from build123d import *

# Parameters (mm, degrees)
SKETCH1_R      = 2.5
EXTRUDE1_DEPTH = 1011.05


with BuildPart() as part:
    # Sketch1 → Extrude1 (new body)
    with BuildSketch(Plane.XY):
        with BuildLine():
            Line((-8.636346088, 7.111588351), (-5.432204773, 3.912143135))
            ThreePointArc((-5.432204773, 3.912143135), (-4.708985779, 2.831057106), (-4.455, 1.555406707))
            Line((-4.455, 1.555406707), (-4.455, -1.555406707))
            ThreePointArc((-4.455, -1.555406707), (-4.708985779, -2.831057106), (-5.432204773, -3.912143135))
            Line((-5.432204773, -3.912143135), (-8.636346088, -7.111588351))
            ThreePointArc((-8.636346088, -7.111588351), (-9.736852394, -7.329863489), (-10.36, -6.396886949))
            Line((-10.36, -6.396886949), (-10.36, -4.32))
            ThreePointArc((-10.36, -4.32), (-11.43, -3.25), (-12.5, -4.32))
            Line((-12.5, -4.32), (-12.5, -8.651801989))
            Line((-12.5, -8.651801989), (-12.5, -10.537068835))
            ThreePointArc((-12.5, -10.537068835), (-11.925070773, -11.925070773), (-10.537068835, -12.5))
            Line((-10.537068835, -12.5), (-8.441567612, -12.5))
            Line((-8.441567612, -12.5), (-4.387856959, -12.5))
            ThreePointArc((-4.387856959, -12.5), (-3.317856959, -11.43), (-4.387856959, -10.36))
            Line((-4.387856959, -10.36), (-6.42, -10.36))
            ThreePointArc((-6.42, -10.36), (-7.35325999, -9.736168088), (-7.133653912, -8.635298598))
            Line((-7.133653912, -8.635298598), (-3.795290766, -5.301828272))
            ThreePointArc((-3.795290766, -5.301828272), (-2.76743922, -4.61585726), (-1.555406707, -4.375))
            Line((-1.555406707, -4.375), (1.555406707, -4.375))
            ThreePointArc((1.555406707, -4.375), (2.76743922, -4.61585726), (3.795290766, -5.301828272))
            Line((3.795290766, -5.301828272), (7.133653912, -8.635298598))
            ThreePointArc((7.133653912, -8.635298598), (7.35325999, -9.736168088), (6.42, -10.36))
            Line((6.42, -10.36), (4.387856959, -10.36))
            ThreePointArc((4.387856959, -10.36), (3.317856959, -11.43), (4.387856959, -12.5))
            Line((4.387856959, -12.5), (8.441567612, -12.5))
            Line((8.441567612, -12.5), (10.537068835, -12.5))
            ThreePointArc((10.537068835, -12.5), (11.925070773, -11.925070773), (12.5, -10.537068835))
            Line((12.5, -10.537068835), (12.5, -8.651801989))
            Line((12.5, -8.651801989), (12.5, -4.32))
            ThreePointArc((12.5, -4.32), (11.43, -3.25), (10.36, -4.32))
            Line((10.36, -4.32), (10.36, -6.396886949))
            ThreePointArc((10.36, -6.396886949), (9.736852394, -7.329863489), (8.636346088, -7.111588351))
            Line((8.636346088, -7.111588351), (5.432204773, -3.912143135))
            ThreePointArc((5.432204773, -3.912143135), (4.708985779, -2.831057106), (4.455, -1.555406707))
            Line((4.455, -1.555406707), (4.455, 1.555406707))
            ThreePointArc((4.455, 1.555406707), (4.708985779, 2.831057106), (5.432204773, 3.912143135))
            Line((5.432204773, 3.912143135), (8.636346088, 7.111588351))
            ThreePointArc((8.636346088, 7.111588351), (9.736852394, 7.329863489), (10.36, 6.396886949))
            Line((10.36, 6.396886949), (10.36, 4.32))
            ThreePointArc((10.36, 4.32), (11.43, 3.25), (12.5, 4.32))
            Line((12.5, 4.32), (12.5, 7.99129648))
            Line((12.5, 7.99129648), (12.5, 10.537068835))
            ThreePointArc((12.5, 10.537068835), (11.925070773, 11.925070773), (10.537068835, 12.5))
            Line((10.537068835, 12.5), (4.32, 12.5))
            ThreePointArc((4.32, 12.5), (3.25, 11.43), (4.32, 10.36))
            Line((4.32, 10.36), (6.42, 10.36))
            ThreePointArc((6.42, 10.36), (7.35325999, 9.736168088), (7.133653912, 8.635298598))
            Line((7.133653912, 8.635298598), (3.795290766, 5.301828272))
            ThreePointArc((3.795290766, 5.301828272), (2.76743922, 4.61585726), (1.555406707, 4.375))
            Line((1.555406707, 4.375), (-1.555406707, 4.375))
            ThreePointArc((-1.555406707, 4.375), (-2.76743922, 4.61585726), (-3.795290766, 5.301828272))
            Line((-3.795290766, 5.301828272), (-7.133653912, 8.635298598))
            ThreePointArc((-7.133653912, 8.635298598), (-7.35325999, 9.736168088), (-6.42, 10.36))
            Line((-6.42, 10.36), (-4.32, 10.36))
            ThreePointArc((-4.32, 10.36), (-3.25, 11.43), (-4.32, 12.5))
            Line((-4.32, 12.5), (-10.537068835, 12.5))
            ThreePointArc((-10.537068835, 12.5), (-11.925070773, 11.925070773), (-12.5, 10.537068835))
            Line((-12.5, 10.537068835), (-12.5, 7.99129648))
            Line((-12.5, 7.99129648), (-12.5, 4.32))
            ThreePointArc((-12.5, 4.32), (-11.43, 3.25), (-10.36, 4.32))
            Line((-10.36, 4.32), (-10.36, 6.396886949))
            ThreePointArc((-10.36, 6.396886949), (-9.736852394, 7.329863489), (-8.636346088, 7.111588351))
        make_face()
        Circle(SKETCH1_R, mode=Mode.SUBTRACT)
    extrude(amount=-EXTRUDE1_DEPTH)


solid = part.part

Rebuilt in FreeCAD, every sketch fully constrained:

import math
import FreeCAD as App
import Part
import Sketcher

V = App.Vector
Q = App.Units.Quantity

doc = App.newDocument("Part")
params = doc.addObject("Spreadsheet::Sheet", "Params")
for row, (alias, value) in enumerate([
    ("sketch1_diameter", "5 mm"),
    ("sketch1_radius", "1.01 mm"),
    ("sketch1_radius2", "1.07 mm"),
    ("sketch1_radius3", "3.17 mm"),
    ("sketch1_width", "2.1 mm"),
    ("pad1_length", "1011.05 mm"),
], start=1):
    params.set(f"A{row}", alias)
    params.set(f"B{row}", "=" + value)
    params.setAlias(f"B{row}", alias)

body = doc.addObject("PartDesign::Body", "Body")

sketch1 = doc.addObject("Sketcher::SketchObject", "Sketch")
body.addObject(sketch1)
sketch1.AttachmentSupport = (doc.XY_Plane, [""])
sketch1.MapMode = "FlatFace"
sketch1.addGeometry(Part.LineSegment(V(-8.636346, 7.111588, 0), V(-5.432205, 3.912143, 0)), False)
sketch1.addGeometry(Part.ArcOfCircle(Part.Circle(V(-7.785487, 1.555407, 0), V(0, 0, 1), 3.330487), math.radians(0), math.radians(45.042018)), False)
sketch1.addGeometry(Part.LineSegment(V(-4.455, 1.555407, 0), V(-4.455, -1.555407, 0)), False)
sketch1.addGeometry(Part.ArcOfCircle(Part.Circle(V(-7.785487, -1.555407, 0), V(0, 0, 1), 3.330487), math.radians(-45.042018), math.radians(0)), False)
sketch1.addGeometry(Part.LineSegment(V(-5.432205, -3.912143, 0), V(-8.636346, -7.111588, 0)), False)
sketch1.addGeometry(Part.ArcOfCircle(Part.Circle(V(-9.35, -6.396887, 0), V(0, 0, 1), 1.01), math.radians(-180), math.radians(-45.042018)), False)
sketch1.addGeometry(Part.LineSegment(V(-10.36, -6.396887, 0), V(-10.36, -4.32, 0)), False)
sketch1.addGeometry(Part.ArcOfCircle(Part.Circle(V(-11.43, -4.32, 0), V(0, 0, 1), 1.07), math.radians(0), math.radians(180)), False)
sketch1.addGeometry(Part.LineSegment(V(-12.5, -4.32, 0), V(-12.5, -10.537069, 0)), False)
sketch1.addGeometry(Part.ArcOfCircle(Part.Circle(V(-10.537069, -10.537069, 0), V(0, 0, 1), 1.962931), math.radians(180), math.radians(270)), False)
sketch1.addGeometry(Part.LineSegment(V(-10.537069, -12.5, 0), V(-4.387857, -12.5, 0)), False)
sketch1.addGeometry(Part.ArcOfCircle(Part.Circle(V(-4.387857, -11.43, 0), V(0, 0, 1), 1.07), math.radians(-90), math.radians(90)), False)
sketch1.addGeometry(Part.LineSegment(V(-4.387857, -10.36, 0), V(-6.42, -10.36, 0)), False)
sketch1.addGeometry(Part.ArcOfCircle(Part.Circle(V(-6.42, -9.35, 0), V(0, 0, 1), 1.01), math.radians(134.957982), math.radians(270)), False)
sketch1.addGeometry(Part.LineSegment(V(-7.133654, -8.635299, 0), V(-3.795291, -5.301828, 0)), False)
sketch1.addGeometry(Part.ArcOfCircle(Part.Circle(V(-1.555407, -7.545, 0), V(0, 0, 1), 3.17), math.radians(90), math.radians(134.957982)), False)
sketch1.addGeometry(Part.LineSegment(V(-1.555407, -4.375, 0), V(1.555407, -4.375, 0)), False)
sketch1.addGeometry(Part.ArcOfCircle(Part.Circle(V(1.555407, -7.545, 0), V(0, 0, 1), 3.17), math.radians(45.042018), math.radians(90)), False)
sketch1.addGeometry(Part.LineSegment(V(3.795291, -5.301828, 0), V(7.133654, -8.635299, 0)), False)
sketch1.addGeometry(Part.ArcOfCircle(Part.Circle(V(6.42, -9.35, 0), V(0, 0, 1), 1.01), math.radians(-90), math.radians(45.042018)), False)
sketch1.addGeometry(Part.LineSegment(V(6.42, -10.36, 0), V(4.387857, -10.36, 0)), False)
sketch1.addGeometry(Part.ArcOfCircle(Part.Circle(V(4.387857, -11.43, 0), V(0, 0, 1), 1.07), math.radians(90), math.radians(270)), False)
sketch1.addGeometry(Part.LineSegment(V(4.387857, -12.5, 0), V(10.537069, -12.5, 0)), False)
sketch1.addGeometry(Part.ArcOfCircle(Part.Circle(V(10.537069, -10.537069, 0), V(0, 0, 1), 1.962931), math.radians(-90), math.radians(0)), False)
sketch1.addGeometry(Part.LineSegment(V(12.5, -10.537069, 0), V(12.5, -4.32, 0)), False)
sketch1.addGeometry(Part.ArcOfCircle(Part.Circle(V(11.43, -4.32, 0), V(0, 0, 1), 1.07), math.radians(0), math.radians(180)), False)
sketch1.addGeometry(Part.LineSegment(V(10.36, -4.32, 0), V(10.36, -6.396887, 0)), False)
sketch1.addGeometry(Part.ArcOfCircle(Part.Circle(V(9.35, -6.396887, 0), V(0, 0, 1), 1.01), math.radians(-134.957982), math.radians(0)), False)
sketch1.addGeometry(Part.LineSegment(V(8.636346, -7.111588, 0), V(5.432205, -3.912143, 0)), False)
sketch1.addGeometry(Part.ArcOfCircle(Part.Circle(V(7.785487, -1.555407, 0), V(0, 0, 1), 3.330487), math.radians(180), math.radians(225.042018)), False)
sketch1.addGeometry(Part.LineSegment(V(4.455, -1.555407, 0), V(4.455, 1.555407, 0)), False)
sketch1.addGeometry(Part.ArcOfCircle(Part.Circle(V(7.785487, 1.555407, 0), V(0, 0, 1), 3.330487), math.radians(134.957982), math.radians(180)), False)
sketch1.addGeometry(Part.LineSegment(V(5.432205, 3.912143, 0), V(8.636346, 7.111588, 0)), False)
sketch1.addGeometry(Part.ArcOfCircle(Part.Circle(V(9.35, 6.396887, 0), V(0, 0, 1), 1.01), math.radians(0), math.radians(134.957982)), False)
sketch1.addGeometry(Part.LineSegment(V(10.36, 6.396887, 0), V(10.36, 4.32, 0)), False)
sketch1.addGeometry(Part.ArcOfCircle(Part.Circle(V(11.43, 4.32, 0), V(0, 0, 1), 1.07), math.radians(180), math.radians(360)), False)
sketch1.addGeometry(Part.LineSegment(V(12.5, 4.32, 0), V(12.5, 10.537069, 0)), False)
sketch1.addGeometry(Part.ArcOfCircle(Part.Circle(V(10.537069, 10.537069, 0), V(0, 0, 1), 1.962931), math.radians(0), math.radians(90)), False)
sketch1.addGeometry(Part.LineSegment(V(10.537069, 12.5, 0), V(4.32, 12.5, 0)), False)
sketch1.addGeometry(Part.ArcOfCircle(Part.Circle(V(4.32, 11.43, 0), V(0, 0, 1), 1.07), math.radians(90), math.radians(270)), False)
sketch1.addGeometry(Part.LineSegment(V(4.32, 10.36, 0), V(6.42, 10.36, 0)), False)
sketch1.addGeometry(Part.ArcOfCircle(Part.Circle(V(6.42, 9.35, 0), V(0, 0, 1), 1.01), math.radians(-45.042018), math.radians(90)), False)
sketch1.addGeometry(Part.LineSegment(V(7.133654, 8.635299, 0), V(3.795291, 5.301828, 0)), False)
sketch1.addGeometry(Part.ArcOfCircle(Part.Circle(V(1.555407, 7.545, 0), V(0, 0, 1), 3.17), math.radians(-90), math.radians(-45.042018)), False)
sketch1.addGeometry(Part.LineSegment(V(1.555407, 4.375, 0), V(-1.555407, 4.375, 0)), False)
sketch1.addGeometry(Part.ArcOfCircle(Part.Circle(V(-1.555407, 7.545, 0), V(0, 0, 1), 3.17), math.radians(-134.957982), math.radians(-90)), False)
sketch1.addGeometry(Part.LineSegment(V(-3.795291, 5.301828, 0), V(-7.133654, 8.635299, 0)), False)
sketch1.addGeometry(Part.ArcOfCircle(Part.Circle(V(-6.42, 9.35, 0), V(0, 0, 1), 1.01), math.radians(90), math.radians(225.042018)), False)
sketch1.addGeometry(Part.LineSegment(V(-6.42, 10.36, 0), V(-4.32, 10.36, 0)), False)
sketch1.addGeometry(Part.ArcOfCircle(Part.Circle(V(-4.32, 11.43, 0), V(0, 0, 1), 1.07), math.radians(-90), math.radians(90)), False)
sketch1.addGeometry(Part.LineSegment(V(-4.32, 12.5, 0), V(-10.537069, 12.5, 0)), False)
sketch1.addGeometry(Part.ArcOfCircle(Part.Circle(V(-10.537069, 10.537069, 0), V(0, 0, 1), 1.962931), math.radians(90), math.radians(180)), False)
sketch1.addGeometry(Part.LineSegment(V(-12.5, 10.537069, 0), V(-12.5, 4.32, 0)), False)
sketch1.addGeometry(Part.ArcOfCircle(Part.Circle(V(-11.43, 4.32, 0), V(0, 0, 1), 1.07), math.radians(180), math.radians(360)), False)
sketch1.addGeometry(Part.LineSegment(V(-10.36, 4.32, 0), V(-10.36, 6.396887, 0)), False)
sketch1.addGeometry(Part.ArcOfCircle(Part.Circle(V(-9.35, 6.396887, 0), V(0, 0, 1), 1.01), math.radians(45.042018), math.radians(180)), False)
sketch1.addGeometry(Part.Circle(V(0, 0, 0), V(0, 0, 1), 2.5), False)
sketch1.addConstraint(Sketcher.Constraint("Tangent", 0, 2, 1, 2))
sketch1.addConstraint(Sketcher.Constraint("Tangent", 1, 1, 2, 1))
sketch1.addConstraint(Sketcher.Constraint("Tangent", 2, 2, 3, 2))
sketch1.addConstraint(Sketcher.Constraint("Tangent", 3, 1, 4, 1))
sketch1.addConstraint(Sketcher.Constraint("Tangent", 4, 2, 5, 2))
sketch1.addConstraint(Sketcher.Constraint("Tangent", 5, 1, 6, 1))
sketch1.addConstraint(Sketcher.Constraint("Tangent", 6, 2, 7, 1))
sketch1.addConstraint(Sketcher.Constraint("Tangent", 7, 2, 8, 1))
sketch1.addConstraint(Sketcher.Constraint("Tangent", 8, 2, 9, 1))
sketch1.addConstraint(Sketcher.Constraint("Tangent", 9, 2, 10, 1))
sketch1.addConstraint(Sketcher.Constraint("Tangent", 10, 2, 11, 1))
sketch1.addConstraint(Sketcher.Constraint("Tangent", 11, 2, 12, 1))
sketch1.addConstraint(Sketcher.Constraint("Tangent", 12, 2, 13, 2))
sketch1.addConstraint(Sketcher.Constraint("Tangent", 13, 1, 14, 1))
sketch1.addConstraint(Sketcher.Constraint("Tangent", 14, 2, 15, 2))
sketch1.addConstraint(Sketcher.Constraint("Tangent", 15, 1, 16, 1))
sketch1.addConstraint(Sketcher.Constraint("Tangent", 16, 2, 17, 2))
sketch1.addConstraint(Sketcher.Constraint("Tangent", 17, 1, 18, 1))
sketch1.addConstraint(Sketcher.Constraint("Tangent", 18, 2, 19, 2))
sketch1.addConstraint(Sketcher.Constraint("Tangent", 19, 1, 20, 1))
sketch1.addConstraint(Sketcher.Constraint("Tangent", 20, 2, 21, 1))
sketch1.addConstraint(Sketcher.Constraint("Tangent", 21, 2, 22, 1))
sketch1.addConstraint(Sketcher.Constraint("Tangent", 22, 2, 23, 1))
sketch1.addConstraint(Sketcher.Constraint("Tangent", 23, 2, 24, 1))
sketch1.addConstraint(Sketcher.Constraint("Tangent", 24, 2, 25, 1))
sketch1.addConstraint(Sketcher.Constraint("Tangent", 25, 2, 26, 1))
sketch1.addConstraint(Sketcher.Constraint("Tangent", 26, 2, 27, 2))
sketch1.addConstraint(Sketcher.Constraint("Tangent", 27, 1, 28, 1))
sketch1.addConstraint(Sketcher.Constraint("Tangent", 28, 2, 29, 2))
sketch1.addConstraint(Sketcher.Constraint("Tangent", 29, 1, 30, 1))
sketch1.addConstraint(Sketcher.Constraint("Tangent", 30, 2, 31, 2))
sketch1.addConstraint(Sketcher.Constraint("Tangent", 31, 1, 32, 1))
sketch1.addConstraint(Sketcher.Constraint("Tangent", 32, 2, 33, 2))
sketch1.addConstraint(Sketcher.Constraint("Tangent", 33, 1, 34, 1))
sketch1.addConstraint(Sketcher.Constraint("Tangent", 34, 2, 35, 1))
sketch1.addConstraint(Sketcher.Constraint("Tangent", 35, 2, 36, 1))
sketch1.addConstraint(Sketcher.Constraint("Tangent", 36, 2, 37, 1))
sketch1.addConstraint(Sketcher.Constraint("Tangent", 37, 2, 38, 1))
sketch1.addConstraint(Sketcher.Constraint("Tangent", 38, 2, 39, 1))
sketch1.addConstraint(Sketcher.Constraint("Tangent", 39, 2, 40, 1))
sketch1.addConstraint(Sketcher.Constraint("Tangent", 40, 2, 41, 2))
sketch1.addConstraint(Sketcher.Constraint("Tangent", 41, 1, 42, 1))
sketch1.addConstraint(Sketcher.Constraint("Tangent", 42, 2, 43, 2))
sketch1.addConstraint(Sketcher.Constraint("Tangent", 43, 1, 44, 1))
sketch1.addConstraint(Sketcher.Constraint("Tangent", 44, 2, 45, 2))
sketch1.addConstraint(Sketcher.Constraint("Tangent", 45, 1, 46, 1))
sketch1.addConstraint(Sketcher.Constraint("Tangent", 46, 2, 47, 2))
sketch1.addConstraint(Sketcher.Constraint("Tangent", 47, 1, 48, 1))
sketch1.addConstraint(Sketcher.Constraint("Tangent", 48, 2, 49, 1))
sketch1.addConstraint(Sketcher.Constraint("Tangent", 49, 2, 50, 1))
sketch1.addConstraint(Sketcher.Constraint("Tangent", 50, 2, 51, 1))
sketch1.addConstraint(Sketcher.Constraint("Tangent", 51, 2, 52, 1))
sketch1.addConstraint(Sketcher.Constraint("Tangent", 52, 2, 53, 1))
sketch1.addConstraint(Sketcher.Constraint("Tangent", 53, 2, 54, 1))
sketch1.addConstraint(Sketcher.Constraint("Tangent", 54, 2, 55, 2))
sketch1.addConstraint(Sketcher.Constraint("Tangent", 55, 1, 0, 1))
sketch1.addConstraint(Sketcher.Constraint("Vertical", 2))
sketch1.addConstraint(Sketcher.Constraint("Vertical", 6))
sketch1.addConstraint(Sketcher.Constraint("Vertical", 8))
sketch1.addConstraint(Sketcher.Constraint("Horizontal", 10))
sketch1.addConstraint(Sketcher.Constraint("Horizontal", 12))
sketch1.addConstraint(Sketcher.Constraint("Horizontal", 16))
sketch1.addConstraint(Sketcher.Constraint("Horizontal", 20))
sketch1.addConstraint(Sketcher.Constraint("Horizontal", 22))
sketch1.addConstraint(Sketcher.Constraint("Vertical", 24))
sketch1.addConstraint(Sketcher.Constraint("Vertical", 26))
sketch1.addConstraint(Sketcher.Constraint("Vertical", 30))
sketch1.addConstraint(Sketcher.Constraint("Vertical", 34))
sketch1.addConstraint(Sketcher.Constraint("Vertical", 36))
sketch1.addConstraint(Sketcher.Constraint("Horizontal", 38))
sketch1.addConstraint(Sketcher.Constraint("Horizontal", 40))
sketch1.addConstraint(Sketcher.Constraint("Horizontal", 44))
sketch1.addConstraint(Sketcher.Constraint("Horizontal", 48))
sketch1.addConstraint(Sketcher.Constraint("Horizontal", 50))
sketch1.addConstraint(Sketcher.Constraint("Vertical", 52))
sketch1.addConstraint(Sketcher.Constraint("Vertical", 54))
sketch1.addConstraint(Sketcher.Constraint("Coincident", 56, 3, -1, 1))
sketch1.addConstraint(Sketcher.Constraint("Equal", 1, 3))
sketch1.addConstraint(Sketcher.Constraint("Equal", 7, 11))
sketch1.addConstraint(Sketcher.Constraint("Equal", 5, 13))
sketch1.addConstraint(Sketcher.Constraint("Equal", 15, 17))
sketch1.addConstraint(Sketcher.Constraint("Equal", 13, 19))
sketch1.addConstraint(Sketcher.Constraint("Equal", 11, 21))
sketch1.addConstraint(Sketcher.Constraint("Equal", 9, 23))
sketch1.addConstraint(Sketcher.Constraint("Equal", 21, 25))
sketch1.addConstraint(Sketcher.Constraint("Equal", 19, 27))
sketch1.addConstraint(Sketcher.Constraint("Equal", 3, 29))
sketch1.addConstraint(Sketcher.Constraint("Equal", 29, 31))
sketch1.addConstraint(Sketcher.Constraint("Equal", 27, 33))
sketch1.addConstraint(Sketcher.Constraint("Equal", 25, 35))
sketch1.addConstraint(Sketcher.Constraint("Equal", 23, 37))
sketch1.addConstraint(Sketcher.Constraint("Equal", 35, 39))
sketch1.addConstraint(Sketcher.Constraint("Equal", 33, 41))
sketch1.addConstraint(Sketcher.Constraint("Equal", 17, 43))
sketch1.addConstraint(Sketcher.Constraint("Equal", 43, 45))
sketch1.addConstraint(Sketcher.Constraint("Equal", 41, 47))
sketch1.addConstraint(Sketcher.Constraint("Equal", 39, 49))
sketch1.addConstraint(Sketcher.Constraint("Equal", 37, 51))
sketch1.addConstraint(Sketcher.Constraint("Equal", 49, 53))
sketch1.addConstraint(Sketcher.Constraint("Equal", 47, 55))
sketch1.addConstraint(Sketcher.Constraint("Symmetric", 1, 3, 29, 3, -1, 1))
sketch1.addConstraint(Sketcher.Constraint("Symmetric", 5, 3, 33, 3, -1, 1))
sketch1.addConstraint(Sketcher.Constraint("Symmetric", 13, 3, 41, 3, -1, 1))
sketch1.addConstraint(Sketcher.Constraint("Symmetric", 15, 3, 43, 3, -1, 1))
sketch1.addConstraint(Sketcher.Constraint("Symmetric", 19, 3, 47, 3, -1, 1))
sketch1.addConstraint(Sketcher.Constraint("Symmetric", 25, 3, 53, 3, -1, 1))
sketch1.addConstraint(Sketcher.Constraint("Symmetric", 13, 3, 19, 3, -2))
sketch1.addConstraint(Sketcher.Constraint("Symmetric", 7, 3, 25, 3, -2))
sketch1.addConstraint(Sketcher.Constraint("Symmetric", 4, 2, 27, 1, -2))
sketch1.addConstraint(Sketcher.Constraint("Symmetric", 0, 2, 31, 1, -2))
sketch1.addConstraint(Sketcher.Constraint("Parallel", 4, 14))
sketch1.addConstraint(Sketcher.Constraint("Parallel", 0, 18))
sketch1.addConstraint(Sketcher.Constraint("Parallel", 28, 46))
sketch1.addConstraint(Sketcher.Constraint("Horizontal", 35, 3, 53, 3))
sketch1.addConstraint(Sketcher.Constraint("Equal", 12, 20))
sketch1.addConstraint(Sketcher.Constraint("Equal", 40, 48))
sketch1.addConstraint(Sketcher.Constraint("Equal", 44, 2))
sketch1.addConstraint(Sketcher.Constraint("Equal", 50, 8))
sketch1.addConstraint(Sketcher.Constraint("Diameter", 56, Q("5 mm")))
sketch1.addConstraint(Sketcher.Constraint("Radius", 5, Q("1.01 mm")))
sketch1.addConstraint(Sketcher.Constraint("Radius", 7, Q("1.07 mm")))
sketch1.addConstraint(Sketcher.Constraint("Radius", 15, Q("3.17 mm")))
sketch1.addConstraint(Sketcher.Constraint("DistanceX", 40, 1, 40, 2, Q("2.1 mm")))
sketch1.addConstraint(Sketcher.Constraint("DistanceX", 7, 2, -1, 1, Q("12.5 mm")))
sketch1.addConstraint(Sketcher.Constraint("DistanceY", 9, 2, -1, 1, Q("12.5 mm")))
sketch1.addConstraint(Sketcher.Constraint("DistanceY", 7, 3, -1, 1, Q("4.32 mm")))
sketch1.addConstraint(Sketcher.Constraint("Radius", 9, Q("1.962931 mm")))
sketch1.addConstraint(Sketcher.Constraint("DistanceY", 15, 3, -1, 1, Q("7.545 mm")))
sketch1.addConstraint(Sketcher.Constraint("DistanceX", 1, 1, -1, 1, Q("4.455 mm")))
sketch1.addConstraint(Sketcher.Constraint("Radius", 1, Q("3.330487 mm")))
sketch1.addConstraint(Sketcher.Constraint("Distance", 14, Q("4.7177 mm")))
sketch1.addConstraint(Sketcher.Constraint("DistanceX", 10, 1, 10, 2, Q("6.149212 mm")))
sketch1.setExpression("Constraints[118]", "Params.sketch1_diameter")
sketch1.setExpression("Constraints[119]", "Params.sketch1_radius")
sketch1.setExpression("Constraints[120]", "Params.sketch1_radius2")
sketch1.setExpression("Constraints[121]", "Params.sketch1_radius3")
sketch1.setExpression("Constraints[122]", "Params.sketch1_width")
pad1 = doc.addObject("PartDesign::Pad", "Pad")
body.addObject(pad1)
pad1.Profile = sketch1
pad1.setExpression("Length", "Params.pad1_length")
pad1.Reversed = True

doc.recompute()
